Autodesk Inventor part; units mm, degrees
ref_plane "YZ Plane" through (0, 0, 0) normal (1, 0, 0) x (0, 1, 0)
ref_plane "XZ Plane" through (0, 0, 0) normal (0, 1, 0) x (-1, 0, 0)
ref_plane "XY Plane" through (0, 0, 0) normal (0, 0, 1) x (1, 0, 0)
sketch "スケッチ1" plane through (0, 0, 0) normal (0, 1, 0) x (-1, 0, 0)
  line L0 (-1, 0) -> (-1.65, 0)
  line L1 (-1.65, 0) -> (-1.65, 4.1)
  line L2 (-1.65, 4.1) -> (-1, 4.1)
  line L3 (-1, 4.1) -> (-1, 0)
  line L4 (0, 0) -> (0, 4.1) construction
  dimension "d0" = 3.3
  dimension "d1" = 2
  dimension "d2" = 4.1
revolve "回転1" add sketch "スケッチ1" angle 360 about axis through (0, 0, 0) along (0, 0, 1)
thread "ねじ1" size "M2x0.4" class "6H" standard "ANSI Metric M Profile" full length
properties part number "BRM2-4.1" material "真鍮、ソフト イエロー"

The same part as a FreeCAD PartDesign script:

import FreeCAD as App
import Part
import Sketcher
Q = App.Units.Quantity


def add_polygon(sketch, points):
    """Adds a closed chain of lines whose ends are joined by coincident constraints."""
    first, n = sketch.GeometryCount, len(points)
    for a, b in zip(points, points[1:] + points[:1]):
        sketch.addGeometry(Part.LineSegment(App.Vector(*a, 0), App.Vector(*b, 0)), False)
    for i in range(n):
        sketch.addConstraint(Sketcher.Constraint("Coincident", first + i, 2, first + (i + 1) % n, 1))

doc = App.newDocument("Part")
body = doc.addObject("PartDesign::Body", "Body")

sketch1 = body.newObject("Sketcher::SketchObject", "Sketch")
sketch1.AttachmentSupport = (doc.getObject("XZ_Plane"), [""])
sketch1.MapMode = "FlatFace"
add_polygon(sketch1, [(1.6, 0), (1, 0), (1, 4.1), (1.6, 4.1)])
sketch1.addConstraint([
    Sketcher.Constraint("Horizontal", 0),
    Sketcher.Constraint("Vertical", 1),
    Sketcher.Constraint("Horizontal", 2),
    Sketcher.Constraint("Vertical", 3),
    Sketcher.Constraint("PointOnObject", 0, 2, -1),
    Sketcher.Constraint("DistanceY", 1, 1, 1, 2, Q("4.1 mm")),
    Sketcher.Constraint("DistanceX", -1, 1, 0, 2, Q("1 mm")),
    Sketcher.Constraint("DistanceX", 0, 2, 0, 1, Q("0.65 mm")),
])
revolution = body.newObject("PartDesign::Revolution", "Revolution")
revolution.Profile = sketch1
revolution.ReferenceAxis = (sketch1, ["V_Axis"])
revolution.Angle = 360

doc.recompute()
